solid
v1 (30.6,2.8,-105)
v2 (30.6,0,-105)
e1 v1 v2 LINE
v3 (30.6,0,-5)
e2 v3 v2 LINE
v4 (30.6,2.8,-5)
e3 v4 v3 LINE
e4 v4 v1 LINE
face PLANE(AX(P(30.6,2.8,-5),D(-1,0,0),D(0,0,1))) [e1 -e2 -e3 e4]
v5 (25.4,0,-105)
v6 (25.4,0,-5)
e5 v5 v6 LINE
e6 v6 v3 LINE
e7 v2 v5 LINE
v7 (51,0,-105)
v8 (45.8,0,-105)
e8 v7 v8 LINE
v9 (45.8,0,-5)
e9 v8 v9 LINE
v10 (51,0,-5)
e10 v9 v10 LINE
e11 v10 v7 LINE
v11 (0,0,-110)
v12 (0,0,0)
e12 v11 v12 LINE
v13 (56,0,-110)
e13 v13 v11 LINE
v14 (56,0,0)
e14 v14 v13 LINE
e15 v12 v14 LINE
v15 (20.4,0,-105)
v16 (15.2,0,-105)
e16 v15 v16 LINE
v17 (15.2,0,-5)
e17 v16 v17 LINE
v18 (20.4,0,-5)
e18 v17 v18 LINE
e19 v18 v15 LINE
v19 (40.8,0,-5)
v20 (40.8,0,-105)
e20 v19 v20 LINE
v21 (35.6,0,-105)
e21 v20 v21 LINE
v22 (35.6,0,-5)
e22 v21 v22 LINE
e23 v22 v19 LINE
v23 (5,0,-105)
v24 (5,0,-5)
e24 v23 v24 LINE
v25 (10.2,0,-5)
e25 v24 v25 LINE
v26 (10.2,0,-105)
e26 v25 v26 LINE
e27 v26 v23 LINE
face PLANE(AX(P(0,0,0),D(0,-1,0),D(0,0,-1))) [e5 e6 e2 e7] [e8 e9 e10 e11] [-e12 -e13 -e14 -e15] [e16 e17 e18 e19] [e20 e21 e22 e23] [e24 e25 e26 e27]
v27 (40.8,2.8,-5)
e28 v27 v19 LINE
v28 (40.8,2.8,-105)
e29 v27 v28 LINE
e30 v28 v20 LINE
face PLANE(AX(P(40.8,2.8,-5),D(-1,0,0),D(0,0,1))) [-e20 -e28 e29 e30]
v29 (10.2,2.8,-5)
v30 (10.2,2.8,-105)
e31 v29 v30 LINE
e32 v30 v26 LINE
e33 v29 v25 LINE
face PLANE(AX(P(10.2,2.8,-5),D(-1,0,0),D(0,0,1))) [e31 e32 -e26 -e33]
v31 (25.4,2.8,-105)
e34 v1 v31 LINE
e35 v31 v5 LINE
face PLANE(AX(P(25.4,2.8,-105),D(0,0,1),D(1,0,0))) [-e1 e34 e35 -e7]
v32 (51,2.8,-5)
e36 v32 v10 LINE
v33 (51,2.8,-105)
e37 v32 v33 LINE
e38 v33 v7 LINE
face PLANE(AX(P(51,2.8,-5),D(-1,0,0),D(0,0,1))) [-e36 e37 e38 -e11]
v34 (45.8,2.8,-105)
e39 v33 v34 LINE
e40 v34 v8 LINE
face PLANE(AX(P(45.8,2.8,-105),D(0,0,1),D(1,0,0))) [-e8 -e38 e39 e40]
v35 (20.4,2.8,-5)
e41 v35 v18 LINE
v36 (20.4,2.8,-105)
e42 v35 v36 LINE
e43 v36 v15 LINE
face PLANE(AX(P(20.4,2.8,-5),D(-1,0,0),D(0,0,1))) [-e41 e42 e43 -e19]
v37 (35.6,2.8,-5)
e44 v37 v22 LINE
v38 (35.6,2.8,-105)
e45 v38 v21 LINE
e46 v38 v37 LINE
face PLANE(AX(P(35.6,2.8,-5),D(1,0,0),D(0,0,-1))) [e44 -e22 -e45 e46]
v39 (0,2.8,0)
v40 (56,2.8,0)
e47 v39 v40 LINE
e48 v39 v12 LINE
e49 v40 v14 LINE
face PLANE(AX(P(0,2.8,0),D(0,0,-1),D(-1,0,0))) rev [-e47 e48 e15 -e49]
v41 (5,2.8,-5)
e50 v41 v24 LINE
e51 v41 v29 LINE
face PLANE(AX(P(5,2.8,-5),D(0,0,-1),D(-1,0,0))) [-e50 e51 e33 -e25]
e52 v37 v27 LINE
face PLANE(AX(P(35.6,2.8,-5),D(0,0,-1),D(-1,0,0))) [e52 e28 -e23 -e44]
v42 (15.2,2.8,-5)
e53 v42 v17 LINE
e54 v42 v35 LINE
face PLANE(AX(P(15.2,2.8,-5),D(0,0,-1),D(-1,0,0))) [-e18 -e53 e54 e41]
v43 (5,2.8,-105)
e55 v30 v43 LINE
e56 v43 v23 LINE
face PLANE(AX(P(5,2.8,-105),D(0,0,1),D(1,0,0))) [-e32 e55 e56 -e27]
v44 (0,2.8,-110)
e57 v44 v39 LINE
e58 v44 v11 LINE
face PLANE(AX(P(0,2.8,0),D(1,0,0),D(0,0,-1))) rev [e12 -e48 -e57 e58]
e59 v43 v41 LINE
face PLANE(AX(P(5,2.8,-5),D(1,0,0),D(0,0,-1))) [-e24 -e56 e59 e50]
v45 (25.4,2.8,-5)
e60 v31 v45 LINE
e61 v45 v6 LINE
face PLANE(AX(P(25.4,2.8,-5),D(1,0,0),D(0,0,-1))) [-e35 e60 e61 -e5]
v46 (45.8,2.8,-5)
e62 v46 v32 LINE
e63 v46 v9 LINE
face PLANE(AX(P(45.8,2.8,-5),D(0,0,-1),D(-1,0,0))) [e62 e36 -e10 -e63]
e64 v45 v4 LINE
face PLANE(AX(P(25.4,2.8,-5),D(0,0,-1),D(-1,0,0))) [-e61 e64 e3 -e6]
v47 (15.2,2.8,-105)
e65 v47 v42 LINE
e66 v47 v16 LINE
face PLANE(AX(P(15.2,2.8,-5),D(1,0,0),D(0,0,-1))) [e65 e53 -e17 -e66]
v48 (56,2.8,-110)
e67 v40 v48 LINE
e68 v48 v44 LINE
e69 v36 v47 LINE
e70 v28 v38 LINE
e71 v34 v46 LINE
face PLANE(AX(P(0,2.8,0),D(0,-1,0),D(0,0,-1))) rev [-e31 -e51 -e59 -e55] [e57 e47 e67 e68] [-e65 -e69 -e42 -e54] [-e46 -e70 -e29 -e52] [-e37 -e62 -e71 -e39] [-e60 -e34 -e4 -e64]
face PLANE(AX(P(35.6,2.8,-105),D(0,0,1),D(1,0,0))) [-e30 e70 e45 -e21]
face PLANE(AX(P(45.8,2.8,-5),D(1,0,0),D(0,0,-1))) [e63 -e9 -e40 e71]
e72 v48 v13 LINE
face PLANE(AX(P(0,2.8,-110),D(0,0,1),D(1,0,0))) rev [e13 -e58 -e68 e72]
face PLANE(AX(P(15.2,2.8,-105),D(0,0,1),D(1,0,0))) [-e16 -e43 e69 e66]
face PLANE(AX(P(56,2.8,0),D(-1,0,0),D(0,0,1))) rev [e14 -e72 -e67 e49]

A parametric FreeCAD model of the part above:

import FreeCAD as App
import Part
import Sketcher
Q = App.Units.Quantity

doc = App.newDocument("Part")
body = doc.addObject("PartDesign::Body", "Body")

sketch1 = body.newObject("Sketcher::SketchObject", "Sketch")
sketch1.AttachmentSupport = (doc.getObject("XZ_Plane"), [""])
sketch1.MapMode = "FlatFace"
sketch1.addGeometry(Part.LineSegment(App.Vector(0, -110, 0), App.Vector(0, 0, 0)), False)
sketch1.addGeometry(Part.LineSegment(App.Vector(0, 0, 0), App.Vector(56, 0, 0)), False)
sketch1.addGeometry(Part.LineSegment(App.Vector(56, 0, 0), App.Vector(56, -110, 0)), False)
sketch1.addGeometry(Part.LineSegment(App.Vector(56, -110, 0), App.Vector(0, -110, 0)), False)
sketch1.addGeometry(Part.LineSegment(App.Vector(10, -5, 0), App.Vector(5, -5, 0)), False)
sketch1.addGeometry(Part.LineSegment(App.Vector(5, -5, 0), App.Vector(5, -105, 0)), False)
sketch1.addGeometry(Part.LineSegment(App.Vector(5, -105, 0), App.Vector(10, -105, 0)), False)
sketch1.addGeometry(Part.LineSegment(App.Vector(10, -105, 0), App.Vector(10, -5, 0)), False)
sketch1.addGeometry(Part.LineSegment(App.Vector(20, -5, 0), App.Vector(15, -5, 0)), False)
sketch1.addGeometry(Part.LineSegment(App.Vector(15, -5, 0), App.Vector(15, -105, 0)), False)
sketch1.addGeometry(Part.LineSegment(App.Vector(15, -105, 0), App.Vector(20, -105, 0)), False)
sketch1.addGeometry(Part.LineSegment(App.Vector(20, -105, 0), App.Vector(20, -5, 0)), False)
sketch1.addGeometry(Part.LineSegment(App.Vector(31, -5, 0), App.Vector(25, -5, 0)), False)
sketch1.addGeometry(Part.LineSegment(App.Vector(25, -5, 0), App.Vector(25, -105, 0)), False)
sketch1.addGeometry(Part.LineSegment(App.Vector(25, -105, 0), App.Vector(31, -105, 0)), False)
sketch1.addGeometry(Part.LineSegment(App.Vector(31, -105, 0), App.Vector(31, -5, 0)), False)
sketch1.addGeometry(Part.LineSegment(App.Vector(41, -5, 0), App.Vector(36, -5, 0)), False)
sketch1.addGeometry(Part.LineSegment(App.Vector(36, -5, 0), App.Vector(36, -105, 0)), False)
sketch1.addGeometry(Part.LineSegment(App.Vector(36, -105, 0), App.Vector(41, -105, 0)), False)
sketch1.addGeometry(Part.LineSegment(App.Vector(41, -105, 0), App.Vector(41, -5, 0)), False)
sketch1.addGeometry(Part.LineSegment(App.Vector(51, -5, 0), App.Vector(46, -5, 0)), False)
sketch1.addGeometry(Part.LineSegment(App.Vector(46, -5, 0), App.Vector(46, -105, 0)), False)
sketch1.addGeometry(Part.LineSegment(App.Vector(46, -105, 0), App.Vector(51, -105, 0)), False)
sketch1.addGeometry(Part.LineSegment(App.Vector(51, -105, 0), App.Vector(51, -5, 0)), False)
sketch1.addConstraint(Sketcher.Constraint("Coincident", 0, 2, 1, 1))
sketch1.addConstraint(Sketcher.Constraint("Coincident", 1, 2, 2, 1))
sketch1.addConstraint(Sketcher.Constraint("Coincident", 2, 2, 3, 1))
sketch1.addConstraint(Sketcher.Constraint("Coincident", 3, 2, 0, 1))
sketch1.addConstraint(Sketcher.Constraint("Coincident", 4, 2, 5, 1))
sketch1.addConstraint(Sketcher.Constraint("Coincident", 5, 2, 6, 1))
sketch1.addConstraint(Sketcher.Constraint("Coincident", 6, 2, 7, 1))
sketch1.addConstraint(Sketcher.Constraint("Coincident", 7, 2, 4, 1))
sketch1.addConstraint(Sketcher.Constraint("Coincident", 8, 2, 9, 1))
sketch1.addConstraint(Sketcher.Constraint("Coincident", 9, 2, 10, 1))
sketch1.addConstraint(Sketcher.Constraint("Coincident", 10, 2, 11, 1))
sketch1.addConstraint(Sketcher.Constraint("Coincident", 11, 2, 8, 1))
sketch1.addConstraint(Sketcher.Constraint("Coincident", 12, 2, 13, 1))
sketch1.addConstraint(Sketcher.Constraint("Coincident", 13, 2, 14, 1))
sketch1.addConstraint(Sketcher.Constraint("Coincident", 14, 2, 15, 1))
sketch1.addConstraint(Sketcher.Constraint("Coincident", 15, 2, 12, 1))
sketch1.addConstraint(Sketcher.Constraint("Coincident", 16, 2, 17, 1))
sketch1.addConstraint(Sketcher.Constraint("Coincident", 17, 2, 18, 1))
sketch1.addConstraint(Sketcher.Constraint("Coincident", 18, 2, 19, 1))
sketch1.addConstraint(Sketcher.Constraint("Coincident", 19, 2, 16, 1))
sketch1.addConstraint(Sketcher.Constraint("Coincident", 20, 2, 21, 1))
sketch1.addConstraint(Sketcher.Constraint("Coincident", 21, 2, 22, 1))
sketch1.addConstraint(Sketcher.Constraint("Coincident", 22, 2, 23, 1))
sketch1.addConstraint(Sketcher.Constraint("Coincident", 23, 2, 20, 1))
sketch1.addConstraint(Sketcher.Constraint("Vertical", 0))
sketch1.addConstraint(Sketcher.Constraint("Horizontal", 1))
sketch1.addConstraint(Sketcher.Constraint("Vertical", 2))
sketch1.addConstraint(Sketcher.Constraint("Horizontal", 3))
sketch1.addConstraint(Sketcher.Constraint("Horizontal", 4))
sketch1.addConstraint(Sketcher.Constraint("Vertical", 5))
sketch1.addConstraint(Sketcher.Constraint("Horizontal", 6))
sketch1.addConstraint(Sketcher.Constraint("Vertical", 7))
sketch1.addConstraint(Sketcher.Constraint("Horizontal", 8))
sketch1.addConstraint(Sketcher.Constraint("Vertical", 9))
sketch1.addConstraint(Sketcher.Constraint("Horizontal", 10))
sketch1.addConstraint(Sketcher.Constraint("Vertical", 11))
sketch1.addConstraint(Sketcher.Constraint("Horizontal", 12))
sketch1.addConstraint(Sketcher.Constraint("Vertical", 13))
sketch1.addConstraint(Sketcher.Constraint("Horizontal", 14))
sketch1.addConstraint(Sketcher.Constraint("Vertical", 15))
sketch1.addConstraint(Sketcher.Constraint("Horizontal", 16))
sketch1.addConstraint(Sketcher.Constraint("Vertical", 17))
sketch1.addConstraint(Sketcher.Constraint("Horizontal", 18))
sketch1.addConstraint(Sketcher.Constraint("Vertical", 19))
sketch1.addConstraint(Sketcher.Constraint("Horizontal", 20))
sketch1.addConstraint(Sketcher.Constraint("Vertical", 21))
sketch1.addConstraint(Sketcher.Constraint("Horizontal", 22))
sketch1.addConstraint(Sketcher.Constraint("Vertical", 23))
sketch1.addConstraint(Sketcher.Constraint("Coincident", 0, 2, -1, 1))
sketch1.addConstraint(Sketcher.Constraint("Horizontal", 7, 2, 8, 2))
sketch1.addConstraint(Sketcher.Constraint("Horizontal", 6, 2, 9, 2))
sketch1.addConstraint(Sketcher.Constraint("Horizontal", 11, 2, 12, 2))
sketch1.addConstraint(Sketcher.Constraint("Horizontal", 10, 2, 13, 2))
sketch1.addConstraint(Sketcher.Constraint("Horizontal", 15, 2, 16, 2))
sketch1.addConstraint(Sketcher.Constraint("Horizontal", 14, 2, 17, 2))
sketch1.addConstraint(Sketcher.Constraint("Horizontal", 19, 2, 20, 2))
sketch1.addConstraint(Sketcher.Constraint("Horizontal", 18, 2, 21, 2))
sketch1.addConstraint(Sketcher.Constraint("Equal", 6, 8))
sketch1.addConstraint(Sketcher.Constraint("Equal", 10, 12))
sketch1.addConstraint(Sketcher.Constraint("Equal", 14, 16))
sketch1.addConstraint(Sketcher.Constraint("Equal", 18, 20))
sketch1.addConstraint(Sketcher.Constraint("DistanceX", 1, 1, 1, 2, Q("56 mm")))
sketch1.addConstraint(Sketcher.Constraint("DistanceY", 0, 1, 0, 2, Q("110 mm")))
sketch1.addConstraint(Sketcher.Constraint("DistanceY", 5, 2, 5, 1, Q("100 mm")))
sketch1.addConstraint(Sketcher.Constraint("DistanceX", 4, 2, 4, 1, Q("5.2 mm")))
sketch1.addConstraint(Sketcher.Constraint("DistanceX", -1, 1, 4, 2, Q("5 mm")))
sketch1.addConstraint(Sketcher.Constraint("DistanceY", 4, 2, -1, 1, Q("5 mm")))
sketch1.addConstraint(Sketcher.Constraint("DistanceX", -1, 1, 22, 2, Q("51 mm")))
sketch1.addConstraint(Sketcher.Constraint("DistanceX", 7, 2, 8, 2, Q("5 mm")))
sketch1.addConstraint(Sketcher.Constraint("DistanceX", 11, 2, 12, 2, Q("5 mm")))
sketch1.addConstraint(Sketcher.Constraint("DistanceX", 15, 2, 16, 2, Q("5 mm")))
pad1 = body.newObject("PartDesign::Pad", "Pad")
pad1.Profile = sketch1
pad1.Length = 2.8
pad1.Reversed = True

doc.recompute()
